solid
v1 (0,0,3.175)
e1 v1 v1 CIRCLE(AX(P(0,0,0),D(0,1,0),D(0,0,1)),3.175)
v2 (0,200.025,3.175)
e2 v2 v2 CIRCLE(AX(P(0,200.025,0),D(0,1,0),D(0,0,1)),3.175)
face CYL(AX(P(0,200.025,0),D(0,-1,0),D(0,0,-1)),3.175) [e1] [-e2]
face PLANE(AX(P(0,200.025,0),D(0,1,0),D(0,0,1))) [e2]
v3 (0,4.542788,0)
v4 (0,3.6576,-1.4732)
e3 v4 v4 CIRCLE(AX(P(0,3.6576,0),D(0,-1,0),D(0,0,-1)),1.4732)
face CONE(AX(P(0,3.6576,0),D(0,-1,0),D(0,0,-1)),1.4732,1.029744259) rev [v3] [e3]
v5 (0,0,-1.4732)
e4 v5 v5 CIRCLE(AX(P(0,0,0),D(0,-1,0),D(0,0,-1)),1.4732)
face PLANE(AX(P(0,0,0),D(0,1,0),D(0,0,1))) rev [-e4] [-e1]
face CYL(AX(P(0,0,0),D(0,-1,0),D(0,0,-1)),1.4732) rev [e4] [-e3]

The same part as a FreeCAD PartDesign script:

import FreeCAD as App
import Part
import Sketcher
Q = App.Units.Quantity

doc = App.newDocument("Part")
params = doc.addObject("Spreadsheet::Sheet", "Params")
for row, (alias, value) in enumerate([
    ("sketch1_diameter", "0.25 in"),
    ("pad1_length", "7.875 in"),
    ("sketch2_diameter", "0.116 in"),
    ("hole_diameter", "0.116 in"),
    ("hole_depth", "0.144 in"),
], start=1):
    params.set(f"A{row}", alias)
    params.set(f"B{row}", "=" + value)
    params.setAlias(f"B{row}", alias)

body = doc.addObject("PartDesign::Body", "Body")

sketch1 = body.newObject("Sketcher::SketchObject", "Sketch")
sketch1.AttachmentSupport = (doc.getObject("XZ_Plane"), [""])
sketch1.MapMode = "FlatFace"
sketch1.addGeometry(Part.Circle(App.Vector(0, 0, 0), App.Vector(0, 0, 1), 3.2), False)
sketch1.addConstraint([
    Sketcher.Constraint("Coincident", 0, 3, -1, 1),
    Sketcher.Constraint("Diameter", 0, Q("0.25 in")),
])
sketch1.setExpression("Constraints[1]", "Params.sketch1_diameter")
pad1 = body.newObject("PartDesign::Pad", "Pad")
pad1.Profile = sketch1
pad1.setExpression("Length", "Params.pad1_length")
pad1.Reversed = True

sketch2 = body.newObject("Sketcher::SketchObject", "Sketch001")
sketch2.AttachmentSupport = (doc.getObject("XZ_Plane"), [""])
sketch2.MapMode = "FlatFace"
sketch2.addGeometry(Part.Circle(App.Vector(0, 0, 0), App.Vector(0, 0, 1), 1.5), False)
sketch2.addConstraint([
    Sketcher.Constraint("Coincident", 0, 3, -1, 1),
    Sketcher.Constraint("Diameter", 0, Q("0.116 in")),
])
sketch2.setExpression("Constraints[1]", "Params.sketch2_diameter")
doc.recompute()
hole = body.newObject("PartDesign::Hole", "Hole")
hole.Profile = sketch2
hole.ThreadType = "None"
hole.setExpression("Diameter", "Params.hole_diameter")
hole.DepthType = "Dimension"
hole.setExpression("Depth", "Params.hole_depth")
hole.DrillPoint = "Angled"
hole.DrillPointAngle = 118

doc.recompute()
